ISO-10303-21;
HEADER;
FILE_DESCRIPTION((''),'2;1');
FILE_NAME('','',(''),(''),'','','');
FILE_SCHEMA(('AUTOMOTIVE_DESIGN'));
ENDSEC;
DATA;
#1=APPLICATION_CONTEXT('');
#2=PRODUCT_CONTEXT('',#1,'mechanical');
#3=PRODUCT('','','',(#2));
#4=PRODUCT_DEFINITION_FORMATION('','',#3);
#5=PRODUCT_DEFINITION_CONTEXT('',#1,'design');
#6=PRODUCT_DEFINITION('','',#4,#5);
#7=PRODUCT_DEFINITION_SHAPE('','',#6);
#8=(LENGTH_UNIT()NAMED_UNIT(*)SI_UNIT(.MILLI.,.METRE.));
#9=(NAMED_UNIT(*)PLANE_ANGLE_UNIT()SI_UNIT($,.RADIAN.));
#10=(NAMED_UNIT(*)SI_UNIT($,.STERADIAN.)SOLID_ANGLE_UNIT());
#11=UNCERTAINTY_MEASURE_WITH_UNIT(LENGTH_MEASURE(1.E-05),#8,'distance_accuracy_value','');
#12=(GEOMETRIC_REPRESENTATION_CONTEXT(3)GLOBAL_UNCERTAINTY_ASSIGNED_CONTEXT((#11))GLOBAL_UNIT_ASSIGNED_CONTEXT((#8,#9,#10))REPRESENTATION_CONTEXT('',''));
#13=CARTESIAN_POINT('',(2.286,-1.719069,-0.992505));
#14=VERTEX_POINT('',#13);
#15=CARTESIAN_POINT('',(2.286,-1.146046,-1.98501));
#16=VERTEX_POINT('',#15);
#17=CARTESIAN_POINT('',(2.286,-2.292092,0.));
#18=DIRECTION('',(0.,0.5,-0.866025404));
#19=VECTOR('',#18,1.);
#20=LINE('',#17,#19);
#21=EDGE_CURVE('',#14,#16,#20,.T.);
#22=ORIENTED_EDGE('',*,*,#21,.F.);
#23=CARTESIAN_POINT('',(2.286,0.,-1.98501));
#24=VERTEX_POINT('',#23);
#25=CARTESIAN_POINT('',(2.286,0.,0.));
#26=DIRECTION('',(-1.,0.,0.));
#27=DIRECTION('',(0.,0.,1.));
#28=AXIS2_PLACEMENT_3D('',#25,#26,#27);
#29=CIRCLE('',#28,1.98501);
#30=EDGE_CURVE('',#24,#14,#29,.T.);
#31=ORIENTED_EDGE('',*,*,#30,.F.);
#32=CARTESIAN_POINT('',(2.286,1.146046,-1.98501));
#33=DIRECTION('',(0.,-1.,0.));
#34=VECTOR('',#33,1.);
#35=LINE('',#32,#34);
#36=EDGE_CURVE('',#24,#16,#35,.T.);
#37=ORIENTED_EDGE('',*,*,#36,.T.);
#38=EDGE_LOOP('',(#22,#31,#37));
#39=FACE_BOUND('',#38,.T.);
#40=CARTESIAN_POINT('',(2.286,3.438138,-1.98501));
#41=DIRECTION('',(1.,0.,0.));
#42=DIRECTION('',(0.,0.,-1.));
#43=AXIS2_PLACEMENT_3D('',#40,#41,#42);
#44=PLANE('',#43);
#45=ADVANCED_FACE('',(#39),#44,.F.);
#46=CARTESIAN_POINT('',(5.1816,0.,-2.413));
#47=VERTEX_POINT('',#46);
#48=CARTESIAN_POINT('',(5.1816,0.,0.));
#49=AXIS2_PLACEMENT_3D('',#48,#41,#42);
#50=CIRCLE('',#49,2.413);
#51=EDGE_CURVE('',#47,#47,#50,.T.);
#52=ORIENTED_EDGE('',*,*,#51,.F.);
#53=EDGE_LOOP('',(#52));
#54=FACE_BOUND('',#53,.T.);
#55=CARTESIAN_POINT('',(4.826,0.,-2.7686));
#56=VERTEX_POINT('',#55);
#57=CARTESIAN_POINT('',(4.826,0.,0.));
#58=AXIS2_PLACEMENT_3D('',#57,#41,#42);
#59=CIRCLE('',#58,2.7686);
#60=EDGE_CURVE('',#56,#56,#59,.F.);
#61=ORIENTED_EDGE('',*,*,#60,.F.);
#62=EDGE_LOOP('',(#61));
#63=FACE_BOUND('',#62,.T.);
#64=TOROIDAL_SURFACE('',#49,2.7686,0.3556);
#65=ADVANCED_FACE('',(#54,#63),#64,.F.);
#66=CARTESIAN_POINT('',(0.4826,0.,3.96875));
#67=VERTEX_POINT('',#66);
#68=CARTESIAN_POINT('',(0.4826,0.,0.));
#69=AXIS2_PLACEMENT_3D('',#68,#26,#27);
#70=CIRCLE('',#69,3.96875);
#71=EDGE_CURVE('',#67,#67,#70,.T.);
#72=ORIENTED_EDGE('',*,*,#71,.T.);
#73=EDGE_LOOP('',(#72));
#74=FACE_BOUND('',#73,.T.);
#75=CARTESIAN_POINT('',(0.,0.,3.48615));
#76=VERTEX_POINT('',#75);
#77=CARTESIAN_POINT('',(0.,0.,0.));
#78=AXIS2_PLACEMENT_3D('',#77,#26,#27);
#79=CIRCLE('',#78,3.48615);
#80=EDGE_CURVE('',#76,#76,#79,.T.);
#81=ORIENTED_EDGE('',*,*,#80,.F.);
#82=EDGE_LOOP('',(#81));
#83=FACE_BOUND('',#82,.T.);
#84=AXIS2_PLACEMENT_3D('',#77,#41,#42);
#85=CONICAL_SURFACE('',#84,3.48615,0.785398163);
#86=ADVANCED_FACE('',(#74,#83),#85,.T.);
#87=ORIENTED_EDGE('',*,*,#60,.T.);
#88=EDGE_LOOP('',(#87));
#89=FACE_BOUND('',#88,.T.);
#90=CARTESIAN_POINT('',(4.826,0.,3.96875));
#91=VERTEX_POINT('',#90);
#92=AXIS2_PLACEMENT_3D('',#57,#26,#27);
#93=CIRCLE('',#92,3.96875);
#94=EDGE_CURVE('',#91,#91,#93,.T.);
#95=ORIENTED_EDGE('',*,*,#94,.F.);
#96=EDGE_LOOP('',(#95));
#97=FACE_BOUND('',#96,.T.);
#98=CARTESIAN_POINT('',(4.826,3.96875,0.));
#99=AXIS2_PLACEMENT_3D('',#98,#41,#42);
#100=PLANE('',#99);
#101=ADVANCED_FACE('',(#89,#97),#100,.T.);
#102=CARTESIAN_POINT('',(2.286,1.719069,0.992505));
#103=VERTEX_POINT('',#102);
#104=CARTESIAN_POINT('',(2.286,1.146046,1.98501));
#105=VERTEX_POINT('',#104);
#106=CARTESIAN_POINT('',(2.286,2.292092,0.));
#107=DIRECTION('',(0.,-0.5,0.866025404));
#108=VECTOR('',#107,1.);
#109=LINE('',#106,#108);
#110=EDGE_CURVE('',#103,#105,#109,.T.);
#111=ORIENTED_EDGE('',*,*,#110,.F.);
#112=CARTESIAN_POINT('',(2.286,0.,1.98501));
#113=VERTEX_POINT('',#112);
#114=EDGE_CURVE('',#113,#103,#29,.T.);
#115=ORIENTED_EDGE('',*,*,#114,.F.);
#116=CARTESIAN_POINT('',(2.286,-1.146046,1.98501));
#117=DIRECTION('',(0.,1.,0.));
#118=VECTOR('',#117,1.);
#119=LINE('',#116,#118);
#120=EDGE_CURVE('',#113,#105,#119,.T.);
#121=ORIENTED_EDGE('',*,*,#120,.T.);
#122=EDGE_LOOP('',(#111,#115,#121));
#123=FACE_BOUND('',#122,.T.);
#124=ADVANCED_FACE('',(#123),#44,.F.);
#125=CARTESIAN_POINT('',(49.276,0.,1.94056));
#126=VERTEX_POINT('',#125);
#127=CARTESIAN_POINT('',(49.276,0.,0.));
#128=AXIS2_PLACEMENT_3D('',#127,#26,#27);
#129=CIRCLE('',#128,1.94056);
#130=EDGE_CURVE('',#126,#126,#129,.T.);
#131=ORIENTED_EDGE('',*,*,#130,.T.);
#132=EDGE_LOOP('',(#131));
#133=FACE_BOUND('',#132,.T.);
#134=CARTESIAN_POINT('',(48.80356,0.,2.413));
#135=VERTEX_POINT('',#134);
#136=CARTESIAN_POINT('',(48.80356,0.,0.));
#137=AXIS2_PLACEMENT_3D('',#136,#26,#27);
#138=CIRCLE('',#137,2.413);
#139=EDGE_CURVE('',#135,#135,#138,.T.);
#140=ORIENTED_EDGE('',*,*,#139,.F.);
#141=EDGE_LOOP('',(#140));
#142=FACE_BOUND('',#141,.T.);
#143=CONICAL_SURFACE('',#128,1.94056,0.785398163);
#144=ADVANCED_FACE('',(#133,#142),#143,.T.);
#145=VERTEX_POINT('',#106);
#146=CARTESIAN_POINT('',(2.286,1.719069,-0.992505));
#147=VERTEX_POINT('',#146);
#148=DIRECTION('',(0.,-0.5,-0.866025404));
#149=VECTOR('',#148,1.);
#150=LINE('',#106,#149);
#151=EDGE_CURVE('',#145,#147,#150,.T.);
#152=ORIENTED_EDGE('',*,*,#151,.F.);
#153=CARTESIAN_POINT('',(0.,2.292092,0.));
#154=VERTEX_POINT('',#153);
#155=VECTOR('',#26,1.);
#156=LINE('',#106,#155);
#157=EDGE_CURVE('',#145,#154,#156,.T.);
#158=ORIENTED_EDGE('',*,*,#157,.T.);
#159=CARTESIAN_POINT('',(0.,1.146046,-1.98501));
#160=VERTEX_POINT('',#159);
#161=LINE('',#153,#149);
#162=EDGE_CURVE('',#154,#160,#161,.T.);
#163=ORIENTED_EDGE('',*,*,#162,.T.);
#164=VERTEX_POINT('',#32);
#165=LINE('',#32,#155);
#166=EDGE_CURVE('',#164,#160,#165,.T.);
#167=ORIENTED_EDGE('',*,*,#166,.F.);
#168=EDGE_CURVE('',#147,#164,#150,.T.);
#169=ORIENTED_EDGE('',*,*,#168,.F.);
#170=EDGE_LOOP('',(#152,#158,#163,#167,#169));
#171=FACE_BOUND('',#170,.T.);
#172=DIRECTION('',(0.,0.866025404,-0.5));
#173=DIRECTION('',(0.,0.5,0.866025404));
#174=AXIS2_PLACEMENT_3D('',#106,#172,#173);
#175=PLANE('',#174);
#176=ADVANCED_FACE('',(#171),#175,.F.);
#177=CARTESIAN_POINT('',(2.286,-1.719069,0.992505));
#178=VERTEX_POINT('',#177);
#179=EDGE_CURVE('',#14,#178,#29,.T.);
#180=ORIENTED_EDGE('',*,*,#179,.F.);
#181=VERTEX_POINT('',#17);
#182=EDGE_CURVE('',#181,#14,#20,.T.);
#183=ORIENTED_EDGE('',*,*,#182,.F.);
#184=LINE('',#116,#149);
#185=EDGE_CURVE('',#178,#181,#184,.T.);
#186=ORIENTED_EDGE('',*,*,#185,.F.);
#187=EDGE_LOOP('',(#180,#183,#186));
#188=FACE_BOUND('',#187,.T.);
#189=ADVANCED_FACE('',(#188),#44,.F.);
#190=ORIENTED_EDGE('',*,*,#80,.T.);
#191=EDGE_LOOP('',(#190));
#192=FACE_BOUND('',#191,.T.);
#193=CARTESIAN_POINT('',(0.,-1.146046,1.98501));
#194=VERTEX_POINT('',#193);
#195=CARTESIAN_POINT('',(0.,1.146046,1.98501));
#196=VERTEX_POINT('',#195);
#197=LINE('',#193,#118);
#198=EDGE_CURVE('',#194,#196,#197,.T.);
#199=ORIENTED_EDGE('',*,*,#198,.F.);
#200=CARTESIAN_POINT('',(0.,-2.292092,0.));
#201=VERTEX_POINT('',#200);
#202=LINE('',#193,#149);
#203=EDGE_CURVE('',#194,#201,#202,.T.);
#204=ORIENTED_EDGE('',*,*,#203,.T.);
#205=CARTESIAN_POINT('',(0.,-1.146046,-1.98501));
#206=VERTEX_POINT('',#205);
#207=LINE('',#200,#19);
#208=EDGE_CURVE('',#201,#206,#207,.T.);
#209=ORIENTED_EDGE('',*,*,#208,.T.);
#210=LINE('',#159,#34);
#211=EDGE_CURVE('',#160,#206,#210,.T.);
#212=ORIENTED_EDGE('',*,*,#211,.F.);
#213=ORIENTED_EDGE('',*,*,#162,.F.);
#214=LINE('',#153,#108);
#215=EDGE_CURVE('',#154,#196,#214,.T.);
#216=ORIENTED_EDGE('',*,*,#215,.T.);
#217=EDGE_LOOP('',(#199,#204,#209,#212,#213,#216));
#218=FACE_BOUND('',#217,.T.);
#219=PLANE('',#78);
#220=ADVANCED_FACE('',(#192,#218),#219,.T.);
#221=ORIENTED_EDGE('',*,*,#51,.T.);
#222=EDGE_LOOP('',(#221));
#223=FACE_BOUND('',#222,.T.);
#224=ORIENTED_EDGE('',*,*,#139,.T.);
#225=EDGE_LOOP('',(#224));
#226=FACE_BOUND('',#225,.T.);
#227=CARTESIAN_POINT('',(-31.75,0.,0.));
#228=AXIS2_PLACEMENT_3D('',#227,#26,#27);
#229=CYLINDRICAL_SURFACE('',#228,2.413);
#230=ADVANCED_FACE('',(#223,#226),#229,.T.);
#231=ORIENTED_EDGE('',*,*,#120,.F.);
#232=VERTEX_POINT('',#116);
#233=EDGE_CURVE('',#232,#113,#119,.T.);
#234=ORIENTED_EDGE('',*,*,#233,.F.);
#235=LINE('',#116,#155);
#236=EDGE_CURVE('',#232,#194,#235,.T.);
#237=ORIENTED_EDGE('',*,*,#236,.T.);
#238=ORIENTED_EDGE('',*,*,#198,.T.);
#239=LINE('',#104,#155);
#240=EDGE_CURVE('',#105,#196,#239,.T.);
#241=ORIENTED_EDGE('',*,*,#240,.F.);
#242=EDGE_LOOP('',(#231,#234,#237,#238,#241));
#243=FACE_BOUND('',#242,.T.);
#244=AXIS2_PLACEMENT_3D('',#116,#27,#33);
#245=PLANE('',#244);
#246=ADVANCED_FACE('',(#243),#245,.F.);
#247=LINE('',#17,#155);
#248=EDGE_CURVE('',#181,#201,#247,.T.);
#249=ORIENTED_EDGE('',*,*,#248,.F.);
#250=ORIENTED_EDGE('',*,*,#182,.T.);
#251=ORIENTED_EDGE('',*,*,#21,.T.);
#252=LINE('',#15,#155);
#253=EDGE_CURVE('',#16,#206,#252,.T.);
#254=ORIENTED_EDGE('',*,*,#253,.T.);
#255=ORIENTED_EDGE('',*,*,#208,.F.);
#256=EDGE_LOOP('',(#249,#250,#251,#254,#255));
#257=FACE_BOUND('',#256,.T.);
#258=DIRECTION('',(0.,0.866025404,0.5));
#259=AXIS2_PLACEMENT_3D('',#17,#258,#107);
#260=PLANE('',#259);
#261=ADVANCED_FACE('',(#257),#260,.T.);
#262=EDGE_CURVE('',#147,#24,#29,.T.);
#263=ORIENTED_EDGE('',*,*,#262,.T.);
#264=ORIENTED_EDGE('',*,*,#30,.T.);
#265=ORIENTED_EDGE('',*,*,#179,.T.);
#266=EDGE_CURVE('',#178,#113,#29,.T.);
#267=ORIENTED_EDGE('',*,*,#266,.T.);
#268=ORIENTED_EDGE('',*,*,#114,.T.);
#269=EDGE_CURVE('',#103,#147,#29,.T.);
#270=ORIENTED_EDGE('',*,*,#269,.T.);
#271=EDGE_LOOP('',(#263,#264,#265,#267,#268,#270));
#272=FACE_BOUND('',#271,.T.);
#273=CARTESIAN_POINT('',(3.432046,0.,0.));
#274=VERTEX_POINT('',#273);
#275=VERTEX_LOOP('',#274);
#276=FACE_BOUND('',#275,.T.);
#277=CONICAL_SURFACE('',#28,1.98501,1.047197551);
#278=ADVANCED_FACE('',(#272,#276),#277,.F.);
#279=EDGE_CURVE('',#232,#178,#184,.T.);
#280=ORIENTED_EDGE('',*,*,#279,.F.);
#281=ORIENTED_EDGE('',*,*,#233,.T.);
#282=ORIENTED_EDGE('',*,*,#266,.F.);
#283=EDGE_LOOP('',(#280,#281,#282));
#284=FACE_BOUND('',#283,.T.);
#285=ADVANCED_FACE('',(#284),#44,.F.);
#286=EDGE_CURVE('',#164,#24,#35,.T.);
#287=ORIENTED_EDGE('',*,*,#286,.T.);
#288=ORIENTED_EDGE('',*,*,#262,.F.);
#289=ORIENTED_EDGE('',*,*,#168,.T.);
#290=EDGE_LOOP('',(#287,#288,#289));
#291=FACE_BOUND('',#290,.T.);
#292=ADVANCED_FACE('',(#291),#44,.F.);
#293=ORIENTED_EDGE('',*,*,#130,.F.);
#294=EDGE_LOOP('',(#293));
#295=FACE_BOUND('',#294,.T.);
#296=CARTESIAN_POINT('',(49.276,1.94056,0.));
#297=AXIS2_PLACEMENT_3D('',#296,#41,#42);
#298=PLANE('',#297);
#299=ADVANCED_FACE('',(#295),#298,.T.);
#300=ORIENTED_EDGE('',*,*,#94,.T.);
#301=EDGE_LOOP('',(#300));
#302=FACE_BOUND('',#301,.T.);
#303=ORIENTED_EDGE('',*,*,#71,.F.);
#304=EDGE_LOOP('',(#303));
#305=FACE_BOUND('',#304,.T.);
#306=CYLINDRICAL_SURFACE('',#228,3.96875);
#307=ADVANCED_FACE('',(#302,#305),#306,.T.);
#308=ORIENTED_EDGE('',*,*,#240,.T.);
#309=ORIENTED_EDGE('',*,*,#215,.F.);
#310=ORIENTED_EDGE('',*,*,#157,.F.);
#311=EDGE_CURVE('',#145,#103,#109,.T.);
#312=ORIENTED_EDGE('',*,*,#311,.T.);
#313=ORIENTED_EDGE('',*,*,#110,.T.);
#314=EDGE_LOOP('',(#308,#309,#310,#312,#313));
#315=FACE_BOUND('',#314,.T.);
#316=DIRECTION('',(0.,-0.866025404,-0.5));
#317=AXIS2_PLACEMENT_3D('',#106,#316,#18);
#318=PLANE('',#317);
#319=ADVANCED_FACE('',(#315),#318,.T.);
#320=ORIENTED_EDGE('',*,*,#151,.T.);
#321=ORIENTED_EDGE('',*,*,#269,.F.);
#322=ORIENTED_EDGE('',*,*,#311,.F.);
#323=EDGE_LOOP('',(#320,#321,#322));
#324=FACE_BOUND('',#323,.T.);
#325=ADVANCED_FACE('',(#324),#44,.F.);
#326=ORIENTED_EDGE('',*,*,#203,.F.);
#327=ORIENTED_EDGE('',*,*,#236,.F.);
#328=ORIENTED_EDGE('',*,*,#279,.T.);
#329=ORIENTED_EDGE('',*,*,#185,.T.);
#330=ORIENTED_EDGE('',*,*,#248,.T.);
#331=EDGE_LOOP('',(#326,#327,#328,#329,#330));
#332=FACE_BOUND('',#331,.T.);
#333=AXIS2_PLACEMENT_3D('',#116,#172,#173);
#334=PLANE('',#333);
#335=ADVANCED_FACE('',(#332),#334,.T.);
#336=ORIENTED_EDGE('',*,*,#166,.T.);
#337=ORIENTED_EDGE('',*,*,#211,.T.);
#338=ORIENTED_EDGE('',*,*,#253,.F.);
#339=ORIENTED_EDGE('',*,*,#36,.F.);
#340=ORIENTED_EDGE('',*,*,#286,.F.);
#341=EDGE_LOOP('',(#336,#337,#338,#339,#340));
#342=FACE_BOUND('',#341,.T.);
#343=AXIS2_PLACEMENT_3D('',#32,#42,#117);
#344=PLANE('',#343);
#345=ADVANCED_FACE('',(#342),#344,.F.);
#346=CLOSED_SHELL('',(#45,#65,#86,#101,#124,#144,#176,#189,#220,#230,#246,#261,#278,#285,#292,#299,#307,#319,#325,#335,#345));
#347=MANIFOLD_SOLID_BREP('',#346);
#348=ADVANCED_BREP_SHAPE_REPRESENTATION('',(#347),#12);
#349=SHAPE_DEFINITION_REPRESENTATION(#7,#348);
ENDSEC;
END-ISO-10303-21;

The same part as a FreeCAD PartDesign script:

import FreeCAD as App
import Part
import Sketcher
Q = App.Units.Quantity


def edges_at(feature, points):
    """Names of the edges that pass closest to the given points."""
    edges = feature.Shape.Edges
    near = lambda p: min(range(len(edges)), key=lambda i: edges[i].distToShape(Part.Vertex(*p))[0])
    return sorted({f"Edge{near(p) + 1}" for p in points})


def add_polygon(sketch, points):
    """Adds a closed chain of lines whose ends are joined by coincident constraints."""
    first, n = sketch.GeometryCount, len(points)
    for a, b in zip(points, points[1:] + points[:1]):
        sketch.addGeometry(Part.LineSegment(App.Vector(*a, 0), App.Vector(*b, 0)), False)
    for i in range(n):
        sketch.addConstraint(Sketcher.Constraint("Coincident", first + i, 2, first + (i + 1) % n, 1))

doc = App.newDocument("Part")
params = doc.addObject("Spreadsheet::Sheet", "Params")
for row, (alias, value) in enumerate([
    ("sketch1_width", "1.94 in"),
    ("sketch1_width2", "0.171 in"),
    ("revolution_angle", "360 deg"),
    ("fillet_radius", "0.014 in"),
    ("sketch2_width", "0.09 in"),
    ("groove_angle", "360 deg"),
    ("pocket1_length", "0.09 in"),
], start=1):
    params.set(f"A{row}", alias)
    params.set(f"B{row}", "=" + value)
    params.setAlias(f"B{row}", alias)

body = doc.addObject("PartDesign::Body", "Body")

# Sketch on XY plane
sketch1 = body.newObject("Sketcher::SketchObject", "Sketch")
sketch1.AttachmentSupport = (doc.getObject("XY_Plane"), [""])
sketch1.MapMode = "FlatFace"
add_polygon(sketch1, [(0, 3.48615), (0, 0), (49.276, 0), (49.276, 1.94056), (48.80356, 2.413), (4.826, 2.413), (4.826, 3.96875), (0.4826, 3.96875)])  # lines 0-7
sketch1.addConstraint(Sketcher.Constraint("Vertical", 0))
sketch1.addConstraint(Sketcher.Constraint("Horizontal", 1))
sketch1.addConstraint(Sketcher.Constraint("Vertical", 2))
sketch1.addConstraint(Sketcher.Constraint("Horizontal", 4))
sketch1.addConstraint(Sketcher.Constraint("Vertical", 5))
sketch1.addConstraint(Sketcher.Constraint("Horizontal", 6))
sketch1.addConstraint(Sketcher.Constraint("Coincident", 0, 2, -1, 1))
sketch1.addConstraint(Sketcher.Constraint("Perpendicular", 3, 7))
sketch1.addConstraint(Sketcher.Constraint("Angle", 3, Q("135 deg")))
sketch1.addConstraint(Sketcher.Constraint("DistanceX", 1, 1, 1, 2, Q("1.94 in")))
sketch1.addConstraint(Sketcher.Constraint("DistanceX", 6, 2, 6, 1, Q("0.171 in")))
sketch1.addConstraint(Sketcher.Constraint("DistanceX", -1, 1, 4, 2, Q("0.19 in")))
sketch1.addConstraint(Sketcher.Constraint("DistanceX", 4, 2, 4, 1, Q("1.7314 in")))
sketch1.addConstraint(Sketcher.Constraint("DistanceY", 2, 1, 2, 2, Q("0.0764 in")))
sketch1.addConstraint(Sketcher.Constraint("DistanceY", -1, 1, 5, 2, Q("0.15625 in")))
sketch1.setExpression("Constraints[17]", "Params.sketch1_width")
sketch1.setExpression("Constraints[18]", "Params.sketch1_width2")
revolution = body.newObject("PartDesign::Revolution", "Revolution")
revolution.Profile = sketch1
revolution.ReferenceAxis = (sketch1, ["H_Axis"])
revolution.setExpression("Angle", "Params.revolution_angle")
doc.recompute()

fillet = body.newObject("PartDesign::Fillet", "Fillet")
fillet.Base = (revolution, edges_at(revolution, [(4.826, 0, -2.413)]))
fillet.setExpression("Radius", "Params.fillet_radius")

# Sketch on XY plane
sketch2 = body.newObject("Sketcher::SketchObject", "Sketch001")
sketch2.AttachmentSupport = (doc.getObject("XY_Plane"), [""])
sketch2.MapMode = "FlatFace"
add_polygon(sketch2, [(2.286, 1.98501), (0, 1.98501), (0, 0), (3.432046, 0)])  # lines 0-3
sketch2.addConstraint(Sketcher.Constraint("Horizontal", 0))
sketch2.addConstraint(Sketcher.Constraint("Vertical", 1))
sketch2.addConstraint(Sketcher.Constraint("Horizontal", 2))
sketch2.addConstraint(Sketcher.Constraint("Coincident", 1, 2, -1, 1))
sketch2.addConstraint(Sketcher.Constraint("Angle", 3, Q("120 deg")))
sketch2.addConstraint(Sketcher.Constraint("DistanceX", 0, 2, 0, 1, Q("0.09 in")))
sketch2.addConstraint(Sketcher.Constraint("DistanceY", 1, 2, 1, 1, 1.98501))
sketch2.setExpression("Constraints[9]", "Params.sketch2_width")
groove = body.newObject("PartDesign::Groove", "Groove")
groove.Profile = sketch2
groove.ReferenceAxis = (sketch2, ["H_Axis"])
groove.setExpression("Angle", "Params.groove_angle")

# Sketch on YZ plane
sketch3 = body.newObject("Sketcher::SketchObject", "Sketch002")
sketch3.AttachmentSupport = (doc.getObject("YZ_Plane"), [""])
sketch3.MapMode = "FlatFace"
add_polygon(sketch3, [(2.292092, 0), (1.146046, -1.98501), (-1.146046, -1.98501), (-2.292092, 0), (-1.146046, 1.98501), (1.146046, 1.98501)])  # lines 0-5
sketch3.addConstraint(Sketcher.Constraint("Horizontal", 1))
sketch3.addConstraint(Sketcher.Constraint("Horizontal", 4))
sketch3.addConstraint(Sketcher.Constraint("Symmetric", 0, 2, 3, 2, -1, 1))
sketch3.addConstraint(Sketcher.Constraint("Symmetric", 2, 2, 5, 2, -1, 1))
sketch3.addConstraint(Sketcher.Constraint("PointOnObject", 2, 2, -1))
sketch3.addConstraint(Sketcher.Constraint("Parallel", 2, 5))
sketch3.addConstraint(Sketcher.Constraint("Vertical", 1, 2, 3, 2))
sketch3.addConstraint(Sketcher.Constraint("Angle", 0, Q("-120 deg")))
sketch3.addConstraint(Sketcher.Constraint("DistanceY", 1, 2, 3, 2, Q("0.1563 in")))
sketch3.addConstraint(Sketcher.Constraint("DistanceX", 1, 2, 1, 1, 2.292092))
pocket1 = body.newObject("PartDesign::Pocket", "Pocket")
pocket1.Profile = sketch3
pocket1.setExpression("Length", "Params.pocket1_length")
pocket1.Reversed = True

doc.recompute()
